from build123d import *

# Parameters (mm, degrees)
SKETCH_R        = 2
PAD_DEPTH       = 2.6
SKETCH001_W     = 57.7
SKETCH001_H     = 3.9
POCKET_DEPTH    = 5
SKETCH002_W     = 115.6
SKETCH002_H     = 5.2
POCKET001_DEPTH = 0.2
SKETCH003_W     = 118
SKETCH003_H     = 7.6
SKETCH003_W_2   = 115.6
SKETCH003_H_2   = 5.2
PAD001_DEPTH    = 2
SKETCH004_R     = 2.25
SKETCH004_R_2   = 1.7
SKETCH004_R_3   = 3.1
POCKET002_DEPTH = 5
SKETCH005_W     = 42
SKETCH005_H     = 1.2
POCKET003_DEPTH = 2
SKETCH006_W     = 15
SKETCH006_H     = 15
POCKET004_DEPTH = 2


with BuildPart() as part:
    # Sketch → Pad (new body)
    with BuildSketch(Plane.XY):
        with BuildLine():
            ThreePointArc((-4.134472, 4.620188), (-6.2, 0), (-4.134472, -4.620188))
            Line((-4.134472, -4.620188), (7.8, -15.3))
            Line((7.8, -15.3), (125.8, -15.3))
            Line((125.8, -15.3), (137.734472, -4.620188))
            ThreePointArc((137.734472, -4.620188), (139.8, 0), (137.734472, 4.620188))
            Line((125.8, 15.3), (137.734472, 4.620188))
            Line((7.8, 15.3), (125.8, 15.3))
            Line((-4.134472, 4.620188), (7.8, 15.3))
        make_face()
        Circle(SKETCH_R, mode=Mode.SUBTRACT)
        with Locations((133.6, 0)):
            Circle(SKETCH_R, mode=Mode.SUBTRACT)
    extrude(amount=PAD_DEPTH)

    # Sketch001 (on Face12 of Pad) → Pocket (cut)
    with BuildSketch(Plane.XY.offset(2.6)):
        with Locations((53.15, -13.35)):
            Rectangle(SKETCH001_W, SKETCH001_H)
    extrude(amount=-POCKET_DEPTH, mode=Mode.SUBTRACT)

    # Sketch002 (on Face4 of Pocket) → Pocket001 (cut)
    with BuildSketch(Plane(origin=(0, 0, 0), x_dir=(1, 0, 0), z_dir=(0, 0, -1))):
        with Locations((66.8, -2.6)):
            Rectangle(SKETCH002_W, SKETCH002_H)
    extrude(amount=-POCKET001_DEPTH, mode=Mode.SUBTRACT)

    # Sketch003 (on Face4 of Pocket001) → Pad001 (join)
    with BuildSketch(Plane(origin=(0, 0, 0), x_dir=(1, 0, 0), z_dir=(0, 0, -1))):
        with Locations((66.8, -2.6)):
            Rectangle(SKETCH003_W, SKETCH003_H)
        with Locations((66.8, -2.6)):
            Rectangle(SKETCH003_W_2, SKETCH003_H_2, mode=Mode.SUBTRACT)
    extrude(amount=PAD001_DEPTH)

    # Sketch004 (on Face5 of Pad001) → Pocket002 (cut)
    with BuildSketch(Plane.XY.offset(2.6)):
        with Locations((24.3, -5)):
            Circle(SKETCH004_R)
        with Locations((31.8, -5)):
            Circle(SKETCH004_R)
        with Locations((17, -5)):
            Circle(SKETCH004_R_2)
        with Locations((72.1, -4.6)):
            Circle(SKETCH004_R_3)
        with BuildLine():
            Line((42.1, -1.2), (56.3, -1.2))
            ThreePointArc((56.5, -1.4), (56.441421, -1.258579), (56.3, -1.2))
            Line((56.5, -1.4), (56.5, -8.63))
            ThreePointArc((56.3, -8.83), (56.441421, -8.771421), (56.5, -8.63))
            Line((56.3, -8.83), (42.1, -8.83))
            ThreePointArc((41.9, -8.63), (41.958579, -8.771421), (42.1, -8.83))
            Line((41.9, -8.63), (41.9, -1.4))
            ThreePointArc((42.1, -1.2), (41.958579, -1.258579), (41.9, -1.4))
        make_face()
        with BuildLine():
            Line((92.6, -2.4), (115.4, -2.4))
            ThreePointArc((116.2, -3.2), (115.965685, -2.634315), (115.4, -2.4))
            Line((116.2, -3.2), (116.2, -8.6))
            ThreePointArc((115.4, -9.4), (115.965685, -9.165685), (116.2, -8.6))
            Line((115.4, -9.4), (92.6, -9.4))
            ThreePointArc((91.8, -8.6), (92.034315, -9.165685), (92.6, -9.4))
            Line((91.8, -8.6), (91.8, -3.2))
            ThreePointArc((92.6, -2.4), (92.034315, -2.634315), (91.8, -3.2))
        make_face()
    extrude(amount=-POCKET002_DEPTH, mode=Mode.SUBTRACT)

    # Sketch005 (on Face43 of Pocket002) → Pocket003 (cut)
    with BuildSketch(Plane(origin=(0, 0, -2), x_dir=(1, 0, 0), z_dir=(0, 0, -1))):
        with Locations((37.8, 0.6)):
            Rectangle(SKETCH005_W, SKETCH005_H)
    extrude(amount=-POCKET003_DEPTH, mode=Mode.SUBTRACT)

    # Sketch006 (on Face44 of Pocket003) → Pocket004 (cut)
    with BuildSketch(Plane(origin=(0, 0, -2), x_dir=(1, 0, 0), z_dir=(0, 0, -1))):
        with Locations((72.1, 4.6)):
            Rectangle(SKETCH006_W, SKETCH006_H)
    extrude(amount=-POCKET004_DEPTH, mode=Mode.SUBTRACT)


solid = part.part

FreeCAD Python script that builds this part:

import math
import FreeCAD as App
import Part
import Sketcher

doc = App.newDocument("Part")
body = doc.addObject("PartDesign::Body", "Body")

# Sketch on XY plane
sketch1 = body.newObject("Sketcher::SketchObject", "Sketch")
sketch1.AttachmentSupport = (doc.getObject("XY_Plane"), [""])
sketch1.MapMode = "FlatFace"
sketch1.addGeometry(Part.ArcOfCircle(Part.Circle(App.Vector(0, 0, 0), App.Vector(0, 0, 1), 6.2), math.radians(132), math.radians(228)), False)
sketch1.addGeometry(Part.LineSegment(App.Vector(-4.1, -4.6, 0), App.Vector(7.8, -15.3, 0)), False)
sketch1.addGeometry(Part.LineSegment(App.Vector(7.8, -15.3, 0), App.Vector(125.8, -15.3, 0)), False)
sketch1.addGeometry(Part.LineSegment(App.Vector(125.8, -15.3, 0), App.Vector(137.7, -4.6, 0)), False)
sketch1.addGeometry(Part.ArcOfCircle(Part.Circle(App.Vector(133.6, 0, 0), App.Vector(0, 0, 1), 6.2), math.radians(-48), math.radians(48)), False)
sketch1.addGeometry(Part.LineSegment(App.Vector(137.7, 4.6, 0), App.Vector(125.8, 15.3, 0)), False)
sketch1.addGeometry(Part.LineSegment(App.Vector(125.8, 15.3, 0), App.Vector(7.8, 15.3, 0)), False)
sketch1.addGeometry(Part.LineSegment(App.Vector(7.8, 15.3, 0), App.Vector(-4.1, 4.6, 0)), False)
sketch1.addGeometry(Part.Circle(App.Vector(0, 0, 0), App.Vector(0, 0, 1), 2), False)
sketch1.addGeometry(Part.Circle(App.Vector(133.6, 0, 0), App.Vector(0, 0, 1), 2), False)
sketch1.addConstraint(Sketcher.Constraint("Tangent", 0, 2, 1, 1))
sketch1.addConstraint(Sketcher.Constraint("Coincident", 1, 2, 2, 1))
sketch1.addConstraint(Sketcher.Constraint("Coincident", 2, 2, 3, 1))
sketch1.addConstraint(Sketcher.Constraint("Tangent", 3, 2, 4, 1))
sketch1.addConstraint(Sketcher.Constraint("Tangent", 4, 2, 5, 1))
sketch1.addConstraint(Sketcher.Constraint("Coincident", 5, 2, 6, 1))
sketch1.addConstraint(Sketcher.Constraint("Coincident", 6, 2, 7, 1))
sketch1.addConstraint(Sketcher.Constraint("Tangent", 7, 2, 0, 1))
sketch1.addConstraint(Sketcher.Constraint("Horizontal", 2))
sketch1.addConstraint(Sketcher.Constraint("Horizontal", 6))
sketch1.addConstraint(Sketcher.Constraint("Coincident", 0, 3, -1, 1))
sketch1.addConstraint(Sketcher.Constraint("Coincident", 8, 3, -1, 1))
sketch1.addConstraint(Sketcher.Constraint("Coincident", 9, 3, 4, 3))
sketch1.addConstraint(Sketcher.Constraint("Equal", 0, 4))
sketch1.addConstraint(Sketcher.Constraint("Equal", 8, 9))
sketch1.addConstraint(Sketcher.Constraint("Symmetric", 3, 2, 4, 2, -1))
sketch1.addConstraint(Sketcher.Constraint("Symmetric", 1, 2, 6, 2, -1))
sketch1.addConstraint(Sketcher.Constraint("Parallel", 1, 5))
sketch1.addConstraint(Sketcher.Constraint("Diameter", 8, 4.0))
sketch1.addConstraint(Sketcher.Constraint("Radius", 0, 6.199999))
sketch1.addConstraint(Sketcher.Constraint("DistanceX", 2, 1, 2, 2, 118.0))
sketch1.addConstraint(Sketcher.Constraint("DistanceX", -1, 1, 4, 3, 133.600001))
sketch1.addConstraint(Sketcher.Constraint("DistanceY", 1, 2, -1, 1, 15.3))
pad1 = body.newObject("PartDesign::Pad", "Pad")
pad1.Profile = sketch1
pad1.Length = 2.6

# Sketch on XY plane
sketch2 = body.newObject("Sketcher::SketchObject", "Sketch001")
sketch2.AttachmentSupport = (doc.getObject("XY_Plane"), [""])
sketch2.MapMode = "FlatFace"
sketch2.AttachmentOffset = App.Placement(App.Vector(0, 0, 2.6), App.Rotation())
sketch2.addGeometry(Part.LineSegment(App.Vector(24.3, -11.4, 0), App.Vector(24.3, -15.3, 0)), False)
sketch2.addGeometry(Part.LineSegment(App.Vector(24.3, -15.3, 0), App.Vector(82, -15.3, 0)), False)
sketch2.addGeometry(Part.LineSegment(App.Vector(82, -15.3, 0), App.Vector(82, -11.4, 0)), False)
sketch2.addGeometry(Part.LineSegment(App.Vector(82, -11.4, 0), App.Vector(24.3, -11.4, 0)), False)
sketch2.addConstraint(Sketcher.Constraint("Coincident", 0, 2, 1, 1))
sketch2.addConstraint(Sketcher.Constraint("Coincident", 1, 2, 2, 1))
sketch2.addConstraint(Sketcher.Constraint("Coincident", 2, 2, 3, 1))
sketch2.addConstraint(Sketcher.Constraint("Coincident", 3, 2, 0, 1))
sketch2.addConstraint(Sketcher.Constraint("Vertical", 0))
sketch2.addConstraint(Sketcher.Constraint("Horizontal", 1))
sketch2.addConstraint(Sketcher.Constraint("Vertical", 2))
sketch2.addConstraint(Sketcher.Constraint("Horizontal", 3))
sketch2.addConstraint(Sketcher.Constraint("DistanceX", 1, 1, 1, 2, 57.7))
sketch2.addConstraint(Sketcher.Constraint("DistanceY", 0, 2, 0, 1, 3.9))
sketch2.addConstraint(Sketcher.Constraint("DistanceX", -1, 1, 1, 2, 82.0))
sketch2.addConstraint(Sketcher.Constraint("DistanceY", 0, 2, -1, 1, 15.3))
pocket1 = body.newObject("PartDesign::Pocket", "Pocket")
pocket1.Profile = sketch2
pocket1.Length = 5

# Sketch on XY plane
sketch3 = body.newObject("Sketcher::SketchObject", "Sketch002")
sketch3.AttachmentSupport = (doc.getObject("XY_Plane"), [""])
sketch3.MapMode = "FlatFace"
sketch3.addGeometry(Part.LineSegment(App.Vector(9, 0, 0), App.Vector(9, 5, 0)), False)
sketch3.addGeometry(Part.LineSegment(App.Vector(9, 5, 0), App.Vector(125, 5, 0)), False)
sketch3.addGeometry(Part.LineSegment(App.Vector(125, 5, 0), App.Vector(125, 0, 0)), False)
sketch3.addGeometry(Part.LineSegment(App.Vector(125, 0, 0), App.Vector(9, 0, 0)), False)
sketch3.addConstraint(Sketcher.Constraint("Coincident", 0, 2, 1, 1))
sketch3.addConstraint(Sketcher.Constraint("Coincident", 1, 2, 2, 1))
sketch3.addConstraint(Sketcher.Constraint("Coincident", 2, 2, 3, 1))
sketch3.addConstraint(Sketcher.Constraint("Coincident", 3, 2, 0, 1))
sketch3.addConstraint(Sketcher.Constraint("Vertical", 0))
sketch3.addConstraint(Sketcher.Constraint("Horizontal", 1))
sketch3.addConstraint(Sketcher.Constraint("Vertical", 2))
sketch3.addConstraint(Sketcher.Constraint("Horizontal", 3))
sketch3.addConstraint(Sketcher.Constraint("PointOnObject", 2, 2, -1))
sketch3.addConstraint(Sketcher.Constraint("DistanceX", 1, 1, 1, 2, 115.6))
sketch3.addConstraint(Sketcher.Constraint("DistanceY", 0, 1, 0, 2, 5.2))
sketch3.addConstraint(Sketcher.Constraint("DistanceX", -1, 1, 0, 2, 9.0))
pocket2 = body.newObject("PartDesign::Pocket", "Pocket001")
pocket2.Profile = sketch3
pocket2.Length = 0.2
pocket2.Reversed = True

# Sketch on XY plane
sketch4 = body.newObject("Sketcher::SketchObject", "Sketch003")
sketch4.AttachmentSupport = (doc.getObject("XY_Plane"), [""])
sketch4.MapMode = "FlatFace"
sketch4.addGeometry(Part.LineSegment(App.Vector(8, -1, 0), App.Vector(8, 6, 0)), False)
sketch4.addGeometry(Part.LineSegment(App.Vector(8, 6, 0), App.Vector(126, 6, 0)), False)
sketch4.addGeometry(Part.LineSegment(App.Vector(126, 6, 0), App.Vector(126, -1, 0)), False)
sketch4.addGeometry(Part.LineSegment(App.Vector(126, -1, 0), App.Vector(8, -1, 0)), False)
sketch4.addGeometry(Part.LineSegment(App.Vector(125, 5, 0), App.Vector(9, 5, 0)), False)
sketch4.addGeometry(Part.LineSegment(App.Vector(9, 5, 0), App.Vector(9, 0, 0)), False)
sketch4.addGeometry(Part.LineSegment(App.Vector(9, 0, 0), App.Vector(125, 0, 0)), False)
sketch4.addGeometry(Part.LineSegment(App.Vector(125, 0, 0), App.Vector(125, 5, 0)), False)
sketch4.addConstraint(Sketcher.Constraint("Coincident", 0, 2, 1, 1))
sketch4.addConstraint(Sketcher.Constraint("Coincident", 1, 2, 2, 1))
sketch4.addConstraint(Sketcher.Constraint("Coincident", 2, 2, 3, 1))
sketch4.addConstraint(Sketcher.Constraint("Coincident", 3, 2, 0, 1))
sketch4.addConstraint(Sketcher.Constraint("Coincident", 4, 2, 5, 1))
sketch4.addConstraint(Sketcher.Constraint("Coincident", 5, 2, 6, 1))
sketch4.addConstraint(Sketcher.Constraint("Coincident", 6, 2, 7, 1))
sketch4.addConstraint(Sketcher.Constraint("Coincident", 7, 2, 4, 1))
sketch4.addConstraint(Sketcher.Constraint("Vertical", 0))
sketch4.addConstraint(Sketcher.Constraint("Horizontal", 1))
sketch4.addConstraint(Sketcher.Constraint("Vertical", 2))
sketch4.addConstraint(Sketcher.Constraint("Horizontal", 3))
sketch4.addConstraint(Sketcher.Constraint("Horizontal", 4))
sketch4.addConstraint(Sketcher.Constraint("Vertical", 5))
sketch4.addConstraint(Sketcher.Constraint("Horizontal", 6))
sketch4.addConstraint(Sketcher.Constraint("Vertical", 7))
sketch4.addConstraint(Sketcher.Constraint("PointOnObject", 5, 2, -1))
sketch4.addConstraint(Sketcher.Constraint("DistanceX", 1, 1, 1, 2, 118.0))
sketch4.addConstraint(Sketcher.Constraint("DistanceX", 4, 2, 4, 1, 115.6))
sketch4.addConstraint(Sketcher.Constraint("DistanceY", 0, 1, 0, 2, 7.6))
sketch4.addConstraint(Sketcher.Constraint("DistanceY", 5, 2, 5, 1, 5.2))
sketch4.addConstraint(Sketcher.Constraint("DistanceX", -1, 1, 4, 2, 9.0))
sketch4.addConstraint(Sketcher.Constraint("DistanceX", -1, 1, 0, 2, 7.8))
sketch4.addConstraint(Sketcher.Constraint("DistanceY", -1, 1, 0, 2, 6.4))
pad2 = body.newObject("PartDesign::Pad", "Pad001")
pad2.Profile = sketch4
pad2.Length = 2
pad2.Reversed = True

# Sketch on XY plane
sketch5 = body.newObject("Sketcher::SketchObject", "Sketch004")
sketch5.AttachmentSupport = (doc.getObject("XY_Plane"), [""])
sketch5.MapMode = "FlatFace"
sketch5.AttachmentOffset = App.Placement(App.Vector(0, 0, 2.6), App.Rotation())
sketch5.addGeometry(Part.Circle(App.Vector(24.3, -5, 0), App.Vector(0, 0, 1), 2.25), False)
sketch5.addGeometry(Part.Circle(App.Vector(31.8, -5, 0), App.Vector(0, 0, 1), 2.25), False)
sketch5.addGeometry(Part.Circle(App.Vector(17, -5, 0), App.Vector(0, 0, 1), 1.7), False)
sketch5.addGeometry(Part.Circle(App.Vector(72.1, -4.6, 0), App.Vector(0, 0, 1), 3.1), False)
sketch5.addGeometry(Part.LineSegment(App.Vector(56.3, -1.2, 0), App.Vector(42.1, -1.2, 0)), False)
sketch5.addGeometry(Part.ArcOfCircle(Part.Circle(App.Vector(42.1, -1.4, 0), App.Vector(0, 0, 1), 0.2), math.radians(90), math.radians(180)), False)
sketch5.addGeometry(Part.LineSegment(App.Vector(41.9, -1.4, 0), App.Vector(41.9, -8.63, 0)), False)
sketch5.addGeometry(Part.ArcOfCircle(Part.Circle(App.Vector(42.1, -8.63, 0), App.Vector(0, 0, 1), 0.2), math.radians(-180), math.radians(-90)), False)
sketch5.addGeometry(Part.LineSegment(App.Vector(42.1, -8.83, 0), App.Vector(56.3, -8.83, 0)), False)
sketch5.addGeometry(Part.ArcOfCircle(Part.Circle(App.Vector(56.3, -8.63, 0), App.Vector(0, 0, 1), 0.2), math.radians(-90), math.radians(0)), False)
sketch5.addGeometry(Part.LineSegment(App.Vector(56.5, -8.63, 0), App.Vector(56.5, -1.4, 0)), False)
sketch5.addGeometry(Part.ArcOfCircle(Part.Circle(App.Vector(56.3, -1.4, 0), App.Vector(0, 0, 1), 0.2), math.radians(0), math.radians(90)), False)
sketch5.addGeometry(Part.LineSegment(App.Vector(115.4, -2.4, 0), App.Vector(92.6, -2.4, 0)), False)
sketch5.addGeometry(Part.ArcOfCircle(Part.Circle(App.Vector(92.6, -3.2, 0), App.Vector(0, 0, 1), 0.8), math.radians(90), math.radians(180)), False)
sketch5.addGeometry(Part.LineSegment(App.Vector(91.8, -3.2, 0), App.Vector(91.8, -8.6, 0)), False)
sketch5.addGeometry(Part.ArcOfCircle(Part.Circle(App.Vector(92.6, -8.6, 0), App.Vector(0, 0, 1), 0.8), math.radians(-180), math.radians(-90)), False)
sketch5.addGeometry(Part.LineSegment(App.Vector(92.6, -9.4, 0), App.Vector(115.4, -9.4, 0)), False)
sketch5.addGeometry(Part.ArcOfCircle(Part.Circle(App.Vector(115.4, -8.6, 0), App.Vector(0, 0, 1), 0.8), math.radians(-90), math.radians(0)), False)
sketch5.addGeometry(Part.LineSegment(App.Vector(116.2, -8.6, 0), App.Vector(116.2, -3.2, 0)), False)
sketch5.addGeometry(Part.ArcOfCircle(Part.Circle(App.Vector(115.4, -3.2, 0), App.Vector(0, 0, 1), 0.8), math.radians(0), math.radians(90)), False)
sketch5.addConstraint(Sketcher.Constraint("Coincident", 4, 2, 5, 1))
sketch5.addConstraint(Sketcher.Constraint("Coincident", 5, 2, 6, 1))
sketch5.addConstraint(Sketcher.Constraint("Coincident", 6, 2, 7, 1))
sketch5.addConstraint(Sketcher.Constraint("Coincident", 7, 2, 8, 1))
sketch5.addConstraint(Sketcher.Constraint("Coincident", 8, 2, 9, 1))
sketch5.addConstraint(Sketcher.Constraint("Coincident", 9, 2, 10, 1))
sketch5.addConstraint(Sketcher.Constraint("Coincident", 10, 2, 11, 1))
sketch5.addConstraint(Sketcher.Constraint("Coincident", 11, 2, 4, 1))
sketch5.addConstraint(Sketcher.Constraint("Tangent", 12, 2, 13, 1))
sketch5.addConstraint(Sketcher.Constraint("Tangent", 13, 2, 14, 1))
sketch5.addConstraint(Sketcher.Constraint("Tangent", 14, 2, 15, 1))
sketch5.addConstraint(Sketcher.Constraint("Tangent", 15, 2, 16, 1))
sketch5.addConstraint(Sketcher.Constraint("Tangent", 16, 2, 17, 1))
sketch5.addConstraint(Sketcher.Constraint("Tangent", 17, 2, 18, 1))
sketch5.addConstraint(Sketcher.Constraint("Tangent", 18, 2, 19, 1))
sketch5.addConstraint(Sketcher.Constraint("Tangent", 19, 2, 12, 1))
sketch5.addConstraint(Sketcher.Constraint("Horizontal", 4))
sketch5.addConstraint(Sketcher.Constraint("Vertical", 6))
sketch5.addConstraint(Sketcher.Constraint("Horizontal", 8))
sketch5.addConstraint(Sketcher.Constraint("Vertical", 10))
sketch5.addConstraint(Sketcher.Constraint("Horizontal", 12))
sketch5.addConstraint(Sketcher.Constraint("Vertical", 14))
sketch5.addConstraint(Sketcher.Constraint("Horizontal", 16))
sketch5.addConstraint(Sketcher.Constraint("Vertical", 18))
sketch5.addConstraint(Sketcher.Constraint("Equal", 0, 1))
sketch5.addConstraint(Sketcher.Constraint("Equal", 5, 7))
sketch5.addConstraint(Sketcher.Constraint("Equal", 7, 9))
sketch5.addConstraint(Sketcher.Constraint("Equal", 9, 11))
sketch5.addConstraint(Sketcher.Constraint("Equal", 13, 15))
sketch5.addConstraint(Sketcher.Constraint("Equal", 15, 17))
sketch5.addConstraint(Sketcher.Constraint("Equal", 17, 19))
sketch5.addConstraint(Sketcher.Constraint("Horizontal", 0, 3, 1, 3))
sketch5.addConstraint(Sketcher.Constraint("Horizontal", 1, 3, 2, 3))
sketch5.addConstraint(Sketcher.Constraint("Horizontal", 11, 3, 5, 2))
sketch5.addConstraint(Sketcher.Constraint("Horizontal", 9, 3, 6, 2))
sketch5.addConstraint(Sketcher.Constraint("Horizontal", 6, 2, 9, 2))
sketch5.addConstraint(Sketcher.Constraint("Horizontal", 5, 2, 10, 2))
sketch5.addConstraint(Sketcher.Constraint("Vertical", 7, 3, 4, 2))
sketch5.addConstraint(Sketcher.Constraint("Vertical", 4, 2, 7, 2))
sketch5.addConstraint(Sketcher.Constraint("Vertical", 11, 3, 8, 2))
sketch5.addConstraint(Sketcher.Constraint("Vertical", 8, 2, 11, 2))
sketch5.addConstraint(Sketcher.Constraint("Diameter", 0, 4.5))
sketch5.addConstraint(Sketcher.Constraint("Diameter", 2, 3.4))
sketch5.addConstraint(Sketcher.Constraint("Diameter", 3, 6.2))
sketch5.addConstraint(Sketcher.Constraint("Radius", 5, 0.200001))
sketch5.addConstraint(Sketcher.Constraint("Radius", 13, 0.800001))
sketch5.addConstraint(Sketcher.Constraint("DistanceX", 4, 2, 4, 1, 14.2))
sketch5.addConstraint(Sketcher.Constraint("DistanceX", 12, 2, 12, 1, 22.8))
sketch5.addConstraint(Sketcher.Constraint("DistanceY", 14, 2, 14, 1, 5.4))
sketch5.addConstraint(Sketcher.Constraint("DistanceY", 0, 3, -1, 1, 5.0))
sketch5.addConstraint(Sketcher.Constraint("DistanceX", -1, 1, 2, 3, 17.0))
sketch5.addConstraint(Sketcher.Constraint("DistanceX", 5, 3, 3, 3, 29.999999))
sketch5.addConstraint(Sketcher.Constraint("DistanceX", 0, 3, 9, 3, 31.999999))
sketch5.addConstraint(Sketcher.Constraint("DistanceY", 15, 3, 3, 3, 3.999999))
sketch5.addConstraint(Sketcher.Constraint("DistanceY", 6, 2, 6, 1, 7.23))
sketch5.addConstraint(Sketcher.Constraint("DistanceX", -1, 1, 0, 3, 24.3))
sketch5.addConstraint(Sketcher.Constraint("DistanceX", -1, 1, 1, 3, 31.8))
sketch5.addConstraint(Sketcher.Constraint("DistanceY", 3, 3, -1, 1, 4.6))
sketch5.addConstraint(Sketcher.Constraint("DistanceY", 5, 3, -1, 1, 1.400001))
sketch5.addConstraint(Sketcher.Constraint("DistanceX", -1, 1, 13, 3, 92.600001))
pocket3 = body.newObject("PartDesign::Pocket", "Pocket002")
pocket3.Profile = sketch5
pocket3.Length = 5

# Sketch on XY plane
sketch6 = body.newObject("Sketcher::SketchObject", "Sketch005")
sketch6.AttachmentSupport = (doc.getObject("XY_Plane"), [""])
sketch6.MapMode = "FlatFace"
sketch6.AttachmentOffset = App.Placement(App.Vector(0, 0, -2), App.Rotation())
sketch6.addGeometry(Part.LineSegment(App.Vector(16.8, -1.2, 0), App.Vector(16.8, 0, 0)), False)
sketch6.addGeometry(Part.LineSegment(App.Vector(16.8, 0, 0), App.Vector(58.8, 0, 0)), False)
sketch6.addGeometry(Part.LineSegment(App.Vector(58.8, 0, 0), App.Vector(58.8, -1.2, 0)), False)
sketch6.addGeometry(Part.LineSegment(App.Vector(58.8, -1.2, 0), App.Vector(16.8, -1.2, 0)), False)
sketch6.addConstraint(Sketcher.Constraint("Coincident", 0, 2, 1, 1))
sketch6.addConstraint(Sketcher.Constraint("Coincident", 1, 2, 2, 1))
sketch6.addConstraint(Sketcher.Constraint("Coincident", 2, 2, 3, 1))
sketch6.addConstraint(Sketcher.Constraint("Coincident", 3, 2, 0, 1))
sketch6.addConstraint(Sketcher.Constraint("Vertical", 0))
sketch6.addConstraint(Sketcher.Constraint("Horizontal", 1))
sketch6.addConstraint(Sketcher.Constraint("Vertical", 2))
sketch6.addConstraint(Sketcher.Constraint("Horizontal", 3))
sketch6.addConstraint(Sketcher.Constraint("PointOnObject", 0, 2, -1))
sketch6.addConstraint(Sketcher.Constraint("DistanceX", 1, 1, 1, 2, 42.0))
sketch6.addConstraint(Sketcher.Constraint("DistanceY", 0, 1, 0, 2, 1.2))
sketch6.addConstraint(Sketcher.Constraint("DistanceX", -1, 1, 0, 2, 16.8))
pocket4 = body.newObject("PartDesign::Pocket", "Pocket003")
pocket4.Profile = sketch6
pocket4.Length = 2
pocket4.Reversed = True

# Sketch on XY plane
sketch7 = body.newObject("Sketcher::SketchObject", "Sketch006")
sketch7.AttachmentSupport = (doc.getObject("XY_Plane"), [""])
sketch7.MapMode = "FlatFace"
sketch7.AttachmentOffset = App.Placement(App.Vector(0, 0, -2), App.Rotation())
sketch7.addGeometry(Part.LineSegment(App.Vector(65, -12, 0), App.Vector(65, 3, 0)), False)
sketch7.addGeometry(Part.LineSegment(App.Vector(65, 3, 0), App.Vector(80, 3, 0)), False)
sketch7.addGeometry(Part.LineSegment(App.Vector(80, 3, 0), App.Vector(80, -12, 0)), False)
sketch7.addGeometry(Part.LineSegment(App.Vector(80, -12, 0), App.Vector(65, -12, 0)), False)
sketch7.addConstraint(Sketcher.Constraint("Coincident", 0, 2, 1, 1))
sketch7.addConstraint(Sketcher.Constraint("Coincident", 1, 2, 2, 1))
sketch7.addConstraint(Sketcher.Constraint("Coincident", 2, 2, 3, 1))
sketch7.addConstraint(Sketcher.Constraint("Coincident", 3, 2, 0, 1))
sketch7.addConstraint(Sketcher.Constraint("Vertical", 0))
sketch7.addConstraint(Sketcher.Constraint("Horizontal", 1))
sketch7.addConstraint(Sketcher.Constraint("Vertical", 2))
sketch7.addConstraint(Sketcher.Constraint("Horizontal", 3))
sketch7.addConstraint(Sketcher.Constraint("Equal", 3, 0))
sketch7.addConstraint(Sketcher.Constraint("DistanceX", 1, 1, 1, 2, 15.0))
sketch7.addConstraint(Sketcher.Constraint("DistanceX", -1, 1, 0, 2, 64.6))
sketch7.addConstraint(Sketcher.Constraint("DistanceY", -1, 1, 0, 2, 2.9))
pocket5 = body.newObject("PartDesign::Pocket", "Pocket004")
pocket5.Profile = sketch7
pocket5.Length = 2
pocket5.Reversed = True

doc.recompute()
